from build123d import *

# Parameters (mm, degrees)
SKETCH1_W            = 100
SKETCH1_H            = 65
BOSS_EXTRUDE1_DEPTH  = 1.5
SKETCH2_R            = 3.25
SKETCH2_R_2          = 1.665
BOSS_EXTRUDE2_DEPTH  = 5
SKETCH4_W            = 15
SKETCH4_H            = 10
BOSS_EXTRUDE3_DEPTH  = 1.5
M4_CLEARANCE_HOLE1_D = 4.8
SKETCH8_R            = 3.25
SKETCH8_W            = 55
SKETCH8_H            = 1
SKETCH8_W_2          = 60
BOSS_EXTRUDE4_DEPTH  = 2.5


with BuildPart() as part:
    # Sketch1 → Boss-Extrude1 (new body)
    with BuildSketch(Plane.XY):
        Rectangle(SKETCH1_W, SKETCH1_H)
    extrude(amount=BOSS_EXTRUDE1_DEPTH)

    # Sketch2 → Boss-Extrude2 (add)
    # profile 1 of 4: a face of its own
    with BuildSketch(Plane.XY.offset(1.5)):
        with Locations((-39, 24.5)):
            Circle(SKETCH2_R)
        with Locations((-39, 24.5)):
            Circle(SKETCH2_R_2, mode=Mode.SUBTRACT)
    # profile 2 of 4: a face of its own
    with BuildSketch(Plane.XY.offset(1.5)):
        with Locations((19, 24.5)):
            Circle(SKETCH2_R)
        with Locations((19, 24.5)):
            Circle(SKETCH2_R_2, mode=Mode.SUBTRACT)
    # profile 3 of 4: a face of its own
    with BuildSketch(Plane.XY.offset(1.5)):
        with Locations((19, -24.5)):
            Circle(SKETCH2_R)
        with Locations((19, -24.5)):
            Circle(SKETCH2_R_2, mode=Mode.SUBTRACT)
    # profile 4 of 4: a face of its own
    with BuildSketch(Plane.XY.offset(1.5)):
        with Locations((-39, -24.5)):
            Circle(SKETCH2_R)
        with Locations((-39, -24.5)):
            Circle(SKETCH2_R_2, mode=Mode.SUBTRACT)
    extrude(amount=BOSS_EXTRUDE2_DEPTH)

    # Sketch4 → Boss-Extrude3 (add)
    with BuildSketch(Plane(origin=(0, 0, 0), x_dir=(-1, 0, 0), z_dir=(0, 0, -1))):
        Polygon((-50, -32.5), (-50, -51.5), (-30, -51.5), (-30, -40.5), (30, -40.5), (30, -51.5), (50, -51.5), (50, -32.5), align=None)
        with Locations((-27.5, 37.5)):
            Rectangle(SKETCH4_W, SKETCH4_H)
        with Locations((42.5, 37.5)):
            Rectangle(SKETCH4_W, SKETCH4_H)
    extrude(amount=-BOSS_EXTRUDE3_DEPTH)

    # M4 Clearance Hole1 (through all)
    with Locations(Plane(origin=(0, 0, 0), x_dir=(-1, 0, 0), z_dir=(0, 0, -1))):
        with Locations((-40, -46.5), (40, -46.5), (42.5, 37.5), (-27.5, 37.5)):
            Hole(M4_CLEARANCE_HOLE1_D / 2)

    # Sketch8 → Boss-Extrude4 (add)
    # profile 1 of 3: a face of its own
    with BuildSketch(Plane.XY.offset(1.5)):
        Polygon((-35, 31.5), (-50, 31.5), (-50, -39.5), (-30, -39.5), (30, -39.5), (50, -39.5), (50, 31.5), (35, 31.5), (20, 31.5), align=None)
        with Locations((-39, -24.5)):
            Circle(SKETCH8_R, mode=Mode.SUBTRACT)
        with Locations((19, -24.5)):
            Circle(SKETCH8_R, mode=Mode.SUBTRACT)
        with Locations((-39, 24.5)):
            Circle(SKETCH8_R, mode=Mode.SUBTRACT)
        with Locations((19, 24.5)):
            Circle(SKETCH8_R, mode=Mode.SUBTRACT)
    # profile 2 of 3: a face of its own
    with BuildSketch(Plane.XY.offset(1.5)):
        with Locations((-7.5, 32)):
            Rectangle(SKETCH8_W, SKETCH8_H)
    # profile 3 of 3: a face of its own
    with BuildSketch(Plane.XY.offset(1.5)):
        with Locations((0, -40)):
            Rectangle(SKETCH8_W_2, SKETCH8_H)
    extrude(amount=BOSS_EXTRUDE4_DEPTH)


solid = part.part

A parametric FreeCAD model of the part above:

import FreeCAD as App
import Part
import Sketcher
Q = App.Units.Quantity

doc = App.newDocument("Part")
body = doc.addObject("PartDesign::Body", "Body")

# Sketch on XY plane
sketch1 = body.newObject("Sketcher::SketchObject", "Sketch")
sketch1.AttachmentSupport = (doc.getObject("XY_Plane"), [""])
sketch1.MapMode = "FlatFace"
sketch1.addGeometry([
    Part.LineSegment(App.Vector(-50, 32, 0), App.Vector(-50, -32, 0)),
    Part.LineSegment(App.Vector(-50, -32, 0), App.Vector(50, -32, 0)),
    Part.LineSegment(App.Vector(50, -32, 0), App.Vector(50, 32, 0)),
    Part.LineSegment(App.Vector(50, 32, 0), App.Vector(-50, 32, 0)),
], False)
sketch1.addConstraint([
    Sketcher.Constraint("Coincident", 0, 2, 1, 1),
    Sketcher.Constraint("Coincident", 1, 2, 2, 1),
    Sketcher.Constraint("Coincident", 2, 2, 3, 1),
    Sketcher.Constraint("Coincident", 3, 2, 0, 1),
    Sketcher.Constraint("Vertical", 0),
    Sketcher.Constraint("Horizontal", 1),
    Sketcher.Constraint("Vertical", 2),
    Sketcher.Constraint("Horizontal", 3),
    Sketcher.Constraint("Symmetric", 0, 2, 2, 2, -1, 1),
    Sketcher.Constraint("DistanceX", 1, 1, 1, 2, Q("100 mm")),
    Sketcher.Constraint("DistanceY", 0, 2, 0, 1, Q("65 mm")),
])
pad1 = body.newObject("PartDesign::Pad", "Pad")
pad1.Profile = sketch1
pad1.Length = 1.5

# Sketch on XY plane
sketch2 = body.newObject("Sketcher::SketchObject", "Sketch001")
sketch2.AttachmentSupport = (doc.getObject("XY_Plane"), [""])
sketch2.MapMode = "FlatFace"
sketch2.AttachmentOffset = App.Placement(App.Vector(0, 0, 1.5), App.Rotation())
sketch2.addGeometry([
    Part.Circle(App.Vector(-39, 24.5, 0), App.Vector(0, 0, 1), 3.2),  # 0
    Part.Circle(App.Vector(-39, 24.5, 0), App.Vector(0, 0, 1), 1.7),  # 1
    Part.Circle(App.Vector(19, 24.5, 0), App.Vector(0, 0, 1), 3.2),  # 2
    Part.Circle(App.Vector(19, 24.5, 0), App.Vector(0, 0, 1), 1.7),  # 3
    Part.Circle(App.Vector(19, -24.5, 0), App.Vector(0, 0, 1), 3.2),  # 4
    Part.Circle(App.Vector(19, -24.5, 0), App.Vector(0, 0, 1), 1.7),  # 5
    Part.Circle(App.Vector(-39, -24.5, 0), App.Vector(0, 0, 1), 3.2),  # 6
    Part.Circle(App.Vector(-39, -24.5, 0), App.Vector(0, 0, 1), 1.7),  # 7
], False)
sketch2.addConstraint([
    Sketcher.Constraint("Coincident", 1, 3, 0, 3),
    Sketcher.Constraint("Coincident", 3, 3, 2, 3),
    Sketcher.Constraint("Coincident", 5, 3, 4, 3),
    Sketcher.Constraint("Coincident", 7, 3, 6, 3),
    Sketcher.Constraint("Equal", 0, 2),
    Sketcher.Constraint("Equal", 1, 3),
    Sketcher.Constraint("Equal", 2, 4),
    Sketcher.Constraint("Equal", 3, 5),
    Sketcher.Constraint("Equal", 4, 6),
    Sketcher.Constraint("Equal", 5, 7),
    Sketcher.Constraint("Symmetric", 2, 3, 4, 3, -1),
    Sketcher.Constraint("Symmetric", 0, 3, 6, 3, -1),
    Sketcher.Constraint("Horizontal", 1, 3, 2, 3),
    Sketcher.Constraint("Diameter", 0, Q("6.5 mm")),
    Sketcher.Constraint("Diameter", 1, Q("3.33 mm")),
    Sketcher.Constraint("DistanceX", 0, 3, -1, 1, Q("39 mm")),
    Sketcher.Constraint("DistanceX", -1, 1, 2, 3, Q("19 mm")),
    Sketcher.Constraint("DistanceY", 4, 3, 2, 3, Q("49 mm")),
])
pad2 = body.newObject("PartDesign::Pad", "Pad001")
pad2.Profile = sketch2
pad2.Length = 5

# Sketch on XY plane
sketch3 = body.newObject("Sketcher::SketchObject", "Sketch002")
sketch3.AttachmentSupport = (doc.getObject("XY_Plane"), [""])
sketch3.MapMode = "FlatFace"
sketch3.addGeometry([
    Part.LineSegment(App.Vector(50, -32, 0), App.Vector(50, -52, 0)),  # 0
    Part.LineSegment(App.Vector(50, -52, 0), App.Vector(30, -52, 0)),  # 1
    Part.LineSegment(App.Vector(30, -52, 0), App.Vector(30, -40, 0)),  # 2
    Part.LineSegment(App.Vector(30, -40, 0), App.Vector(-30, -40, 0)),  # 3
    Part.LineSegment(App.Vector(-30, -40, 0), App.Vector(-30, -52, 0)),  # 4
    Part.LineSegment(App.Vector(-30, -52, 0), App.Vector(-50, -52, 0)),  # 5
    Part.LineSegment(App.Vector(-50, -52, 0), App.Vector(-50, -32, 0)),  # 6
    Part.LineSegment(App.Vector(-50, -32, 0), App.Vector(50, -32, 0)),  # 7
    Part.LineSegment(App.Vector(35, 42, 0), App.Vector(35, 32, 0)),  # 8
    Part.LineSegment(App.Vector(35, 32, 0), App.Vector(20, 32, 0)),  # 9
    Part.LineSegment(App.Vector(20, 32, 0), App.Vector(20, 42, 0)),  # 10
    Part.LineSegment(App.Vector(20, 42, 0), App.Vector(35, 42, 0)),  # 11
    Part.LineSegment(App.Vector(-35, 42, 0), App.Vector(-35, 32, 0)),  # 12
    Part.LineSegment(App.Vector(-35, 32, 0), App.Vector(-50, 32, 0)),  # 13
    Part.LineSegment(App.Vector(-50, 32, 0), App.Vector(-50, 42, 0)),  # 14
    Part.LineSegment(App.Vector(-50, 42, 0), App.Vector(-35, 42, 0)),  # 15
], False)
sketch3.addConstraint([
    Sketcher.Constraint("Coincident", 0, 2, 1, 1),
    Sketcher.Constraint("Coincident", 1, 2, 2, 1),
    Sketcher.Constraint("Coincident", 2, 2, 3, 1),
    Sketcher.Constraint("Coincident", 3, 2, 4, 1),
    Sketcher.Constraint("Coincident", 4, 2, 5, 1),
    Sketcher.Constraint("Coincident", 5, 2, 6, 1),
    Sketcher.Constraint("Coincident", 6, 2, 7, 1),
    Sketcher.Constraint("Coincident", 7, 2, 0, 1),
    Sketcher.Constraint("Coincident", 8, 2, 9, 1),
    Sketcher.Constraint("Coincident", 9, 2, 10, 1),
    Sketcher.Constraint("Coincident", 10, 2, 11, 1),
    Sketcher.Constraint("Coincident", 11, 2, 8, 1),
    Sketcher.Constraint("Coincident", 12, 2, 13, 1),
    Sketcher.Constraint("Coincident", 13, 2, 14, 1),
    Sketcher.Constraint("Coincident", 14, 2, 15, 1),
    Sketcher.Constraint("Coincident", 15, 2, 12, 1),
    Sketcher.Constraint("Vertical", 0),
    Sketcher.Constraint("Horizontal", 1),
    Sketcher.Constraint("Vertical", 2),
    Sketcher.Constraint("Horizontal", 3),
    Sketcher.Constraint("Vertical", 4),
    Sketcher.Constraint("Horizontal", 5),
    Sketcher.Constraint("Vertical", 6),
    Sketcher.Constraint("Horizontal", 7),
    Sketcher.Constraint("Vertical", 8),
    Sketcher.Constraint("Horizontal", 9),
    Sketcher.Constraint("Vertical", 10),
    Sketcher.Constraint("Horizontal", 11),
    Sketcher.Constraint("Vertical", 12),
    Sketcher.Constraint("Horizontal", 13),
    Sketcher.Constraint("Vertical", 14),
    Sketcher.Constraint("Horizontal", 15),
    Sketcher.Constraint("Symmetric", 7, 2, 13, 2, -1, 1),
    Sketcher.Constraint("Symmetric", 1, 2, 4, 2, -2),
    Sketcher.Constraint("Symmetric", 8, 2, 12, 2, -2),
    Sketcher.Constraint("Horizontal", 11, 2, 14, 2),
    Sketcher.Constraint("Vertical", 6, 2, 13, 2),
    Sketcher.Constraint("Equal", 11, 13),
    Sketcher.Constraint("DistanceX", 1, 2, 1, 1, Q("20 mm")),
    Sketcher.Constraint("DistanceX", 3, 2, 3, 1, Q("60 mm")),
    Sketcher.Constraint("DistanceX", 9, 2, 9, 1, Q("15 mm")),
    Sketcher.Constraint("DistanceY", 0, 2, 0, 1, Q("19 mm")),
    Sketcher.Constraint("DistanceY", 2, 1, 2, 2, Q("11 mm")),
    Sketcher.Constraint("DistanceY", 8, 2, 8, 1, Q("10 mm")),
    Sketcher.Constraint("DistanceY", 7, 2, 8, 2, Q("65 mm")),
])
pad3 = body.newObject("PartDesign::Pad", "Pad002")
pad3.Profile = sketch3
pad3.Length = 1.5

# Sketch on XY plane
sketch4 = body.newObject("Sketcher::SketchObject", "Sketch003")
sketch4.AttachmentSupport = (doc.getObject("XY_Plane"), [""])
sketch4.MapMode = "FlatFace"
sketch4.addGeometry([
    Part.Circle(App.Vector(40, -46.5, 0), App.Vector(0, 0, 1), 2.4),
    Part.Circle(App.Vector(-40, -46.5, 0), App.Vector(0, 0, 1), 2.4),
    Part.Circle(App.Vector(-42.5, 37.5, 0), App.Vector(0, 0, 1), 2.4),
    Part.Circle(App.Vector(27.5, 37.5, 0), App.Vector(0, 0, 1), 2.4),
], False)
sketch4.addConstraint([
    Sketcher.Constraint("Equal", 0, 1),
    Sketcher.Constraint("Equal", 1, 2),
    Sketcher.Constraint("Equal", 2, 3),
    Sketcher.Constraint("Symmetric", 0, 3, 1, 3, -2),
    Sketcher.Constraint("Horizontal", 2, 3, 3, 3),
    Sketcher.Constraint("Diameter", 0, Q("4.8 mm")),
    Sketcher.Constraint("DistanceX", -1, 1, 0, 3, Q("40 mm")),
    Sketcher.Constraint("DistanceY", 1, 3, 2, 3, Q("84 mm")),
    Sketcher.Constraint("DistanceX", 2, 3, 3, 3, Q("70 mm")),
    Sketcher.Constraint("DistanceY", 0, 3, -1, 1, Q("46.5 mm")),
    Sketcher.Constraint("DistanceX", 2, 3, -1, 1, Q("42.5 mm")),
])
doc.recompute()
hole = body.newObject("PartDesign::Hole", "Hole")
hole.Profile = sketch4
hole.ThreadType = "None"
hole.Diameter = 4.8
hole.DepthType = "ThroughAll"
hole.Reversed = True

# Sketch on XY plane
sketch5 = body.newObject("Sketcher::SketchObject", "Sketch004")
sketch5.AttachmentSupport = (doc.getObject("XY_Plane"), [""])
sketch5.MapMode = "FlatFace"
sketch5.AttachmentOffset = App.Placement(App.Vector(0, 0, 1.5), App.Rotation())
sketch5.addGeometry([
    Part.LineSegment(App.Vector(-50, 31.5, 0), App.Vector(-50, -39.5, 0)),  # 0
    Part.LineSegment(App.Vector(-50, -39.5, 0), App.Vector(-30, -39.5, 0)),  # 1
    Part.LineSegment(App.Vector(-30, -39.5, 0), App.Vector(-30, -40.5, 0)),  # 2
    Part.LineSegment(App.Vector(-30, -40.5, 0), App.Vector(30, -40.5, 0)),  # 3
    Part.LineSegment(App.Vector(30, -40.5, 0), App.Vector(30, -39.5, 0)),  # 4
    Part.LineSegment(App.Vector(30, -39.5, 0), App.Vector(50, -39.5, 0)),  # 5
    Part.LineSegment(App.Vector(50, -39.5, 0), App.Vector(50, 31.5, 0)),  # 6
    Part.LineSegment(App.Vector(50, 31.5, 0), App.Vector(20, 31.5, 0)),  # 7
    Part.LineSegment(App.Vector(20, 31.5, 0), App.Vector(20, 32.5, 0)),  # 8
    Part.LineSegment(App.Vector(20, 32.5, 0), App.Vector(-35, 32.5, 0)),  # 9
    Part.LineSegment(App.Vector(-35, 32.5, 0), App.Vector(-35, 31.5, 0)),  # 10
    Part.LineSegment(App.Vector(-35, 31.5, 0), App.Vector(-50, 31.5, 0)),  # 11
    Part.Circle(App.Vector(-39, -24.5, 0), App.Vector(0, 0, 1), 3.2),  # 12
    Part.Circle(App.Vector(19, -24.5, 0), App.Vector(0, 0, 1), 3.2),  # 13
    Part.Circle(App.Vector(-39, 24.5, 0), App.Vector(0, 0, 1), 3.2),  # 14
    Part.Circle(App.Vector(19, 24.5, 0), App.Vector(0, 0, 1), 3.2),  # 15
], False)
sketch5.addConstraint([
    Sketcher.Constraint("Coincident", 0, 2, 1, 1),
    Sketcher.Constraint("Coincident", 1, 2, 2, 1),
    Sketcher.Constraint("Coincident", 2, 2, 3, 1),
    Sketcher.Constraint("Coincident", 3, 2, 4, 1),
    Sketcher.Constraint("Coincident", 4, 2, 5, 1),
    Sketcher.Constraint("Coincident", 5, 2, 6, 1),
    Sketcher.Constraint("Coincident", 6, 2, 7, 1),
    Sketcher.Constraint("Coincident", 7, 2, 8, 1),
    Sketcher.Constraint("Coincident", 8, 2, 9, 1),
    Sketcher.Constraint("Coincident", 9, 2, 10, 1),
    Sketcher.Constraint("Coincident", 10, 2, 11, 1),
    Sketcher.Constraint("Coincident", 11, 2, 0, 1),
    Sketcher.Constraint("Vertical", 0),
    Sketcher.Constraint("Horizontal", 1),
    Sketcher.Constraint("Vertical", 2),
    Sketcher.Constraint("Horizontal", 3),
    Sketcher.Constraint("Vertical", 4),
    Sketcher.Constraint("Horizontal", 5),
    Sketcher.Constraint("Vertical", 6),
    Sketcher.Constraint("Horizontal", 7),
    Sketcher.Constraint("Vertical", 8),
    Sketcher.Constraint("Horizontal", 9),
    Sketcher.Constraint("Vertical", 10),
    Sketcher.Constraint("Horizontal", 11),
    Sketcher.Constraint("Equal", 12, 13),
    Sketcher.Constraint("Equal", 13, 14),
    Sketcher.Constraint("Equal", 14, 15),
    Sketcher.Constraint("Symmetric", 1, 2, 4, 2, -2),
    Sketcher.Constraint("Symmetric", 6, 2, 11, 2, -2),
    Sketcher.Constraint("Symmetric", 12, 3, 14, 3, -1),
    Sketcher.Constraint("Symmetric", 13, 3, 15, 3, -1),
    Sketcher.Constraint("Horizontal", 12, 3, 13, 3),
    Sketcher.Constraint("Equal", 4, 8),
    Sketcher.Constraint("Diameter", 12, Q("6.5 mm")),
    Sketcher.Constraint("DistanceX", 1, 1, 1, 2, Q("20 mm")),
    Sketcher.Constraint("DistanceX", 3, 1, 3, 2, Q("60 mm")),
    Sketcher.Constraint("DistanceX", 7, 2, 7, 1, Q("30 mm")),
    Sketcher.Constraint("DistanceX", 9, 2, 9, 1, Q("55 mm")),
    Sketcher.Constraint("DistanceY", 0, 2, 0, 1, Q("71 mm")),
    Sketcher.Constraint("DistanceY", 2, 2, 2, 1, Q("1 mm")),
    Sketcher.Constraint("DistanceX", 12, 3, -1, 1, Q("39 mm")),
    Sketcher.Constraint("DistanceX", -1, 1, 13, 3, Q("19 mm")),
    Sketcher.Constraint("DistanceY", 12, 3, 14, 3, Q("49 mm")),
    Sketcher.Constraint("DistanceY", 0, 2, 12, 3, Q("15 mm")),
])
pad4 = body.newObject("PartDesign::Pad", "Pad003")
pad4.Profile = sketch5
pad4.Length = 2.5

doc.recompute()
